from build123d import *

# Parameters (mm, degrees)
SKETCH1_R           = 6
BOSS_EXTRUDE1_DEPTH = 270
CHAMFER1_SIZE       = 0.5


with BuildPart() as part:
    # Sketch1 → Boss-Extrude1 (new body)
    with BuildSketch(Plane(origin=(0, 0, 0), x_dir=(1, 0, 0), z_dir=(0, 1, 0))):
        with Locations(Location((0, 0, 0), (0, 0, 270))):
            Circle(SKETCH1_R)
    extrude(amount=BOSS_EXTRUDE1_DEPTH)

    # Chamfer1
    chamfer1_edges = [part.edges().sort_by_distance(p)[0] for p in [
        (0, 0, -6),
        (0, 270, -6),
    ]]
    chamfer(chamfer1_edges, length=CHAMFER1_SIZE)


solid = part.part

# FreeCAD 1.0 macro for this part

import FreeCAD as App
import Part
import Sketcher
Q = App.Units.Quantity


def edges_at(feature, points):
    """Names of the edges that pass closest to the given points."""
    edges = feature.Shape.Edges
    near = lambda p: min(range(len(edges)), key=lambda i: edges[i].distToShape(Part.Vertex(*p))[0])
    return sorted({f"Edge{near(p) + 1}" for p in points})

doc = App.newDocument("Part")
params = doc.addObject("Spreadsheet::Sheet", "Params")
for row, (alias, value) in enumerate([
    ("sketch1_diameter", "12 mm"),
    ("pad1_length", "270 mm"),
    ("chamfer_size", "0.5 mm"),
], start=1):
    params.set(f"A{row}", alias)
    params.set(f"B{row}", "=" + value)
    params.setAlias(f"B{row}", alias)

body = doc.addObject("PartDesign::Body", "Body")

# Sketch on XZ plane
sketch1 = doc.addObject("Sketcher::SketchObject", "Sketch")
body.addObject(sketch1)
sketch1.AttachmentSupport = (doc.XZ_Plane, [""])
sketch1.MapMode = "FlatFace"
sketch1.addGeometry(Part.Circle(App.Vector(0, 0, 0), App.Vector(0, 0, 1), 6), False)
sketch1.addConstraint([
    Sketcher.Constraint("Coincident", 0, 3, -1, 1),
    Sketcher.Constraint("Diameter", 0, Q("12 mm")),
])
sketch1.setExpression("Constraints[1]", "Params.sketch1_diameter")
pad1 = doc.addObject("PartDesign::Pad", "Pad")
body.addObject(pad1)
pad1.Profile = sketch1
pad1.setExpression("Length", "Params.pad1_length")
pad1.Reversed = True
doc.recompute()

chamfer = doc.addObject("PartDesign::Chamfer", "Chamfer")
body.addObject(chamfer)
chamfer.Base = (pad1, edges_at(pad1, [(0, 0, -6), (0, 270, -6)]))
chamfer.setExpression("Size", "Params.chamfer_size")

doc.recompute()
